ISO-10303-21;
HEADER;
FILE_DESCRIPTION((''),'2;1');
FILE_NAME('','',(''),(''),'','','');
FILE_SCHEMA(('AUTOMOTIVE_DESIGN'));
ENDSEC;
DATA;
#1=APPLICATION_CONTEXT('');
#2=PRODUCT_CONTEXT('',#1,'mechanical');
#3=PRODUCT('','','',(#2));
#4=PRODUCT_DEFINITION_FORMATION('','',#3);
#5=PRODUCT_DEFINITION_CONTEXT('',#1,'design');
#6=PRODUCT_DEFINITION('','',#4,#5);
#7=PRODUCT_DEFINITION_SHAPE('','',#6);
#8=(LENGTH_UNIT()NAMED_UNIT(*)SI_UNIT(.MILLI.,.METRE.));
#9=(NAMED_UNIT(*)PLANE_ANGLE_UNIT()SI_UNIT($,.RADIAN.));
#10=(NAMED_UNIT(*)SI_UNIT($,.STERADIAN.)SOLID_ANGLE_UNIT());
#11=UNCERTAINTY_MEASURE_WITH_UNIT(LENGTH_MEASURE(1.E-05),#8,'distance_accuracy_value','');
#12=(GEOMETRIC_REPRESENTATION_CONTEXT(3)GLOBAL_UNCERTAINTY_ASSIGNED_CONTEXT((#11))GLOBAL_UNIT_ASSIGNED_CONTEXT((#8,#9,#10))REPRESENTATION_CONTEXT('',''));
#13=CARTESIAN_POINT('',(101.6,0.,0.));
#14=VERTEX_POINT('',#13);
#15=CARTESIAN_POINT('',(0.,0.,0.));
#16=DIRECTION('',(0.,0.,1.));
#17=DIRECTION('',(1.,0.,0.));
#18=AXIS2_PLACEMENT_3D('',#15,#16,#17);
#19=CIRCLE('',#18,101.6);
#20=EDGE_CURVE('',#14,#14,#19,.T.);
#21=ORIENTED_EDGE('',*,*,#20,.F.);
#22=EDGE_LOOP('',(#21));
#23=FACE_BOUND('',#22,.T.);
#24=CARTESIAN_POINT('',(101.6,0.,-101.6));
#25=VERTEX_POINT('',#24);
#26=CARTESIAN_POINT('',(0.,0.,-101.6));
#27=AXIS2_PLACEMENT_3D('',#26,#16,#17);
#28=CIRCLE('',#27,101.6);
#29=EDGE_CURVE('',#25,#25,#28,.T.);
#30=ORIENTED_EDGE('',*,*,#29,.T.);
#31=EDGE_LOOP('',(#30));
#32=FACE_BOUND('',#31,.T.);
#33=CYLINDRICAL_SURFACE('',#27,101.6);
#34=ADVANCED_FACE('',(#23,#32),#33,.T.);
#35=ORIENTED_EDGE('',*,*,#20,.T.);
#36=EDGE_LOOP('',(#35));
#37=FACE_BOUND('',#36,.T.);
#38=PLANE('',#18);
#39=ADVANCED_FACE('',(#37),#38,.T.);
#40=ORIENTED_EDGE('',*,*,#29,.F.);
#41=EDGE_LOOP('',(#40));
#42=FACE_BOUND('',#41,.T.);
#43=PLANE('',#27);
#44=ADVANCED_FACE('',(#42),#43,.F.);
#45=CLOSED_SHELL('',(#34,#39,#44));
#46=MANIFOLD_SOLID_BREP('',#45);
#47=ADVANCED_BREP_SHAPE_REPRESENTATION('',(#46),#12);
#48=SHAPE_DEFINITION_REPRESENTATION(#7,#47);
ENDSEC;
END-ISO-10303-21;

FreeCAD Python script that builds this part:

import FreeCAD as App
import Part
import Sketcher

V = App.Vector
Q = App.Units.Quantity

doc = App.newDocument("Part")
body = doc.addObject("PartDesign::Body", "Body")

sketch1 = body.newObject("Sketcher::SketchObject", "Sketch")
sketch1.AttachmentSupport = (doc.getObject("XY_Plane"), [""])
sketch1.MapMode = "FlatFace"
sketch1.addGeometry(Part.Circle(V(0, 0, 0), V(0, 0, 1), 101.6), False)
sketch1.addConstraint(Sketcher.Constraint("Coincident", 0, 3, -1, 1))
sketch1.addConstraint(Sketcher.Constraint("Diameter", 0, Q("8 in")))
pad1 = body.newObject("PartDesign::Pad", "Pad")
pad1.Profile = sketch1
pad1.Length = Q("4 in")
pad1.Reversed = True

doc.recompute()
